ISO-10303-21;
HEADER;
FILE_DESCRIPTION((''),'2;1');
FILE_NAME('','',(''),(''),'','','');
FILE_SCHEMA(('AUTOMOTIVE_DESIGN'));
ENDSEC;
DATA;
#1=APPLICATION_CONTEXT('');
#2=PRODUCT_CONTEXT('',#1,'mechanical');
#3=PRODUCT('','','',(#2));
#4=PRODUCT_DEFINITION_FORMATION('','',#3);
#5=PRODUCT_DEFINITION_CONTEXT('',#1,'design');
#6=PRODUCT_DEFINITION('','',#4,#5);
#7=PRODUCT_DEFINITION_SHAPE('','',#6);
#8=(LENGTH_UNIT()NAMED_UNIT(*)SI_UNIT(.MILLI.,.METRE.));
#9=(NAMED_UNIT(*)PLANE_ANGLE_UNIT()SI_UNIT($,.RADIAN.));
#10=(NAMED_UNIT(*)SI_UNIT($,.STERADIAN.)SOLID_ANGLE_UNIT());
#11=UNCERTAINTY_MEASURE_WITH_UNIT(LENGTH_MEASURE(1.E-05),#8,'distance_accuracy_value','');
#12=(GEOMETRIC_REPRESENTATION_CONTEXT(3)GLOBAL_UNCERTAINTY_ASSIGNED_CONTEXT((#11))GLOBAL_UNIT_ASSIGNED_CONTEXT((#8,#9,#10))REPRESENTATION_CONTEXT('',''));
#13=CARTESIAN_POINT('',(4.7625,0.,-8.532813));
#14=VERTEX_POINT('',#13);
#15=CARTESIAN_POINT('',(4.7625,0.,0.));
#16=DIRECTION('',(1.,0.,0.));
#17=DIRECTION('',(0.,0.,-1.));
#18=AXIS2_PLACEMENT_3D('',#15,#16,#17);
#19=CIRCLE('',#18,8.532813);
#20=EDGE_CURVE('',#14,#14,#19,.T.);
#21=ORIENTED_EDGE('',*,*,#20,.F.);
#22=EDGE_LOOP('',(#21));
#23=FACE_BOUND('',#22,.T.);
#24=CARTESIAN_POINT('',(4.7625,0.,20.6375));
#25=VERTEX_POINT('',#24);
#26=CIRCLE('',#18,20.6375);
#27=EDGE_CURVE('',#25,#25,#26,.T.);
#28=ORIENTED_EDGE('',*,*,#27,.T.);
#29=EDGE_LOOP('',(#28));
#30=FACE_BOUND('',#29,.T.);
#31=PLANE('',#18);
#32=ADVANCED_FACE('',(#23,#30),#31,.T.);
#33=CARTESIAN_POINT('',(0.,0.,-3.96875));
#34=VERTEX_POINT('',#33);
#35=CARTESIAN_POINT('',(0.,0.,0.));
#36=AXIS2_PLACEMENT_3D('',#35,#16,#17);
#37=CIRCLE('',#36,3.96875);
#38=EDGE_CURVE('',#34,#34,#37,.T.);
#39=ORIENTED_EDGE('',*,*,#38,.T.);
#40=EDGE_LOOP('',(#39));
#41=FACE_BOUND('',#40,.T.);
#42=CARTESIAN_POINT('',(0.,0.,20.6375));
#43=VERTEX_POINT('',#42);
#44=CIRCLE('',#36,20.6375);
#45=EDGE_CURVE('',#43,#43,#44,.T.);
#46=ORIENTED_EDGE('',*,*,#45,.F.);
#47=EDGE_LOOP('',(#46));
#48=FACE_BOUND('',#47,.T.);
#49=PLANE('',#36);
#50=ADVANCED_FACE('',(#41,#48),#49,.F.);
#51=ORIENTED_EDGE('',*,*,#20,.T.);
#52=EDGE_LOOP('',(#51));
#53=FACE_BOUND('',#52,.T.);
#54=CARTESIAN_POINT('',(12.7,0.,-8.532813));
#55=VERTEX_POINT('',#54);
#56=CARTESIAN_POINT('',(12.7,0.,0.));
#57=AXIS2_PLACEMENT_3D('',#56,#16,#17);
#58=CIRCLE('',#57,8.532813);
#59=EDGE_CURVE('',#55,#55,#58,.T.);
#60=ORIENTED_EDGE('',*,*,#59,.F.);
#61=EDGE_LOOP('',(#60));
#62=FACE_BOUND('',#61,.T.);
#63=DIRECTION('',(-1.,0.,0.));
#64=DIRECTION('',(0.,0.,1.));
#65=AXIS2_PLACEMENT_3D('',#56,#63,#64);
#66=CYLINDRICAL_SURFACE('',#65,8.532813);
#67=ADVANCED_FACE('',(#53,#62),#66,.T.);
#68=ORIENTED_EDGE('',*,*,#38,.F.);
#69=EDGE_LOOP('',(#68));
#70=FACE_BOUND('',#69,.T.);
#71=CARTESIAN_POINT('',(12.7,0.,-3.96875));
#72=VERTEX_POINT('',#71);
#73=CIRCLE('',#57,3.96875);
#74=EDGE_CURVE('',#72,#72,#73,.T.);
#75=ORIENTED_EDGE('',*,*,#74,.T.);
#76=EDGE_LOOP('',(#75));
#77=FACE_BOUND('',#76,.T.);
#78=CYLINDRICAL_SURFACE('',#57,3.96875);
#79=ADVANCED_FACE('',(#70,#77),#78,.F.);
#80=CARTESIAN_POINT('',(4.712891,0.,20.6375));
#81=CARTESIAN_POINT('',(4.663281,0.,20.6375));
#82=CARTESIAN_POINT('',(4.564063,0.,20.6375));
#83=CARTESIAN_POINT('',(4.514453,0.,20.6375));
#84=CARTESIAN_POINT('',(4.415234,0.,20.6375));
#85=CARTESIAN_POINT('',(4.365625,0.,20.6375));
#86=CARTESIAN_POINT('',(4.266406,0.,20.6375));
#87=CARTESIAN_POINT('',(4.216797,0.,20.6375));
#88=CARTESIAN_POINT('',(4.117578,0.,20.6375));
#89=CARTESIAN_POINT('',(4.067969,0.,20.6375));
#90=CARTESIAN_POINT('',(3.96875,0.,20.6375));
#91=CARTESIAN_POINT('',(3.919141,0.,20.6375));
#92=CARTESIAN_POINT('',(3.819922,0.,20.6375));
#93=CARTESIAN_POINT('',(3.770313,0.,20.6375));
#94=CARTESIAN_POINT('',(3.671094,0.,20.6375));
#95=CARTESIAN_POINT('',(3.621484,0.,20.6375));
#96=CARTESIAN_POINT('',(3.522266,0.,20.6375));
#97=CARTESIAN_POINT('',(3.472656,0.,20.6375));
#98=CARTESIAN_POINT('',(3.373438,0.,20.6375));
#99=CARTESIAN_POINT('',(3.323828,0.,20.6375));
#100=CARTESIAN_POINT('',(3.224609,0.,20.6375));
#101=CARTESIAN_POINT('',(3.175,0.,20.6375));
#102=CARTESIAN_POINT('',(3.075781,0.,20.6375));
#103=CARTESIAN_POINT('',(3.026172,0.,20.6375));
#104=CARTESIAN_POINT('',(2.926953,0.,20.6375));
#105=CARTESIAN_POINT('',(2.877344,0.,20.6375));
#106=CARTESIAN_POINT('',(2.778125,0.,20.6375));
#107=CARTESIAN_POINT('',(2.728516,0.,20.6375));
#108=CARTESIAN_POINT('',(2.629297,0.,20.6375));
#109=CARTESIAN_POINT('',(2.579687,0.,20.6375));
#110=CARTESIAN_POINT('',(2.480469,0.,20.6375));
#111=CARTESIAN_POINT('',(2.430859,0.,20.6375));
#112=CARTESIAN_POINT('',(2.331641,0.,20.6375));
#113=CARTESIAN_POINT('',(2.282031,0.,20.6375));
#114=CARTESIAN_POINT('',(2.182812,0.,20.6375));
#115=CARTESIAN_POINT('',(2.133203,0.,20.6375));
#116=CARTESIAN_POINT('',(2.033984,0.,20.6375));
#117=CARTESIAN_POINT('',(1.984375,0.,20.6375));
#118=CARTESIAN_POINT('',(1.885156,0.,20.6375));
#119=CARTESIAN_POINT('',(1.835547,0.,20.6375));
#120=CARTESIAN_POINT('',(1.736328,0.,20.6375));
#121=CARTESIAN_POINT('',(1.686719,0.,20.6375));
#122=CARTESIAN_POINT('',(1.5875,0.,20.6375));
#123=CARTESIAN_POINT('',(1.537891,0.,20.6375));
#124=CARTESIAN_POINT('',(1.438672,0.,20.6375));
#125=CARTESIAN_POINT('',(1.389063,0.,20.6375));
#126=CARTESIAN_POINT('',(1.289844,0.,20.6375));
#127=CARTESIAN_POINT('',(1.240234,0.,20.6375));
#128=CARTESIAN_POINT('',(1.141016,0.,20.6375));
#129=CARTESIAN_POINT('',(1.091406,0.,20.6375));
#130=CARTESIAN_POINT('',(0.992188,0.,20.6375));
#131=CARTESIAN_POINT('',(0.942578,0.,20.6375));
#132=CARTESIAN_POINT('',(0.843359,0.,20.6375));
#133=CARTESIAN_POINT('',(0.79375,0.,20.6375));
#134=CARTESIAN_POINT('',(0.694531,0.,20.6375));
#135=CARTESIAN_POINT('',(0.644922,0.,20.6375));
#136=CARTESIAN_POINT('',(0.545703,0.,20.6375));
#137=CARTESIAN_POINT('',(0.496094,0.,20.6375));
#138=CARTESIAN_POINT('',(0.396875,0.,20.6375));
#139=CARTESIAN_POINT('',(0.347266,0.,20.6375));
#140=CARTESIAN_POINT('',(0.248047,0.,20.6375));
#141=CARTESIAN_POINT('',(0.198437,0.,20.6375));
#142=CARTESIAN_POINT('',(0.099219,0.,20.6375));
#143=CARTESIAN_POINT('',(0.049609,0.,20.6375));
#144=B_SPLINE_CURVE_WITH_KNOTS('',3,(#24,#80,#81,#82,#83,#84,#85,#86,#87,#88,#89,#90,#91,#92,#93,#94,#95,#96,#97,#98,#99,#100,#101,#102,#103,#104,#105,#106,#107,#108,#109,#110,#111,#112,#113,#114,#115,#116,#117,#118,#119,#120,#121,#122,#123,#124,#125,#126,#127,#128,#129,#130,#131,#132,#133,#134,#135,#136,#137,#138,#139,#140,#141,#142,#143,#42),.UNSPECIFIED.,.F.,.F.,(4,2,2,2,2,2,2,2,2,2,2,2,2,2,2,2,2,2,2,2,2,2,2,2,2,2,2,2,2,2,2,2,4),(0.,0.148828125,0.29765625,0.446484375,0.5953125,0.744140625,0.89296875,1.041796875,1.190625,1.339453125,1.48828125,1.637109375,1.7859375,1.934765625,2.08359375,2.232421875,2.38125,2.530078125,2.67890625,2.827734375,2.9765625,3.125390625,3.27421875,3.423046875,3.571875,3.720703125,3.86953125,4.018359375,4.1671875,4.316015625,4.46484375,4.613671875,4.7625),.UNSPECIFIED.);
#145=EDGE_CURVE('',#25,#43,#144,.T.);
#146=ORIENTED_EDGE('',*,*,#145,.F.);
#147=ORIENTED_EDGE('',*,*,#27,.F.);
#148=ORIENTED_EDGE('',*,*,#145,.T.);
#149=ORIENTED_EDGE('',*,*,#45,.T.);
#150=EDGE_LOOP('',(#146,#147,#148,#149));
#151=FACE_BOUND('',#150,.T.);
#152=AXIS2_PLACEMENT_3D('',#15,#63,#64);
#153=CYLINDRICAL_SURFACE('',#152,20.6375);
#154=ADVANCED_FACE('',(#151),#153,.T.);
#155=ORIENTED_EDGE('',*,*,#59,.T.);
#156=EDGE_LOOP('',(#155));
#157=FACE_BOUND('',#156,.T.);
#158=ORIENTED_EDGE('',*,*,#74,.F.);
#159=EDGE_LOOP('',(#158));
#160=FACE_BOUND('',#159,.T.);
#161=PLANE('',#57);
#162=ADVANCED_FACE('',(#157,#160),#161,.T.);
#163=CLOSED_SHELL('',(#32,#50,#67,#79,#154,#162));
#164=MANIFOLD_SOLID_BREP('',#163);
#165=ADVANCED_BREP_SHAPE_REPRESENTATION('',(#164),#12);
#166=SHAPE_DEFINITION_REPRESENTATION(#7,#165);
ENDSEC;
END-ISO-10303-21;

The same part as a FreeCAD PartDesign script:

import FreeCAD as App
import Part
import Sketcher
from FreeCAD import Vector
Q = App.Units.Quantity

doc = App.newDocument("Part")
body = doc.addObject("PartDesign::Body", "Body")

# Sketch on YZ plane
sketch1 = doc.addObject("Sketcher::SketchObject", "Sketch")
body.addObject(sketch1)
sketch1.AttachmentSupport = (doc.YZ_Plane, [""])
sketch1.MapMode = "FlatFace"
sketch1.addGeometry(Part.Circle(Vector(0, 0, 0), Vector(0, 0, 1), 21), False)
sketch1.addConstraint([
    Sketcher.Constraint("Coincident", 0, 3, -1, 1),
    Sketcher.Constraint("Diameter", 0, Q("1.625 in")),
])
pad1 = doc.addObject("PartDesign::Pad", "Pad")
body.addObject(pad1)
pad1.Profile = sketch1
pad1.Length = Q("0.1875 in")

# Sketch on YZ plane
sketch2 = doc.addObject("Sketcher::SketchObject", "Sketch001")
body.addObject(sketch2)
sketch2.AttachmentSupport = (doc.YZ_Plane, [""])
sketch2.MapMode = "FlatFace"
sketch2.AttachmentOffset = App.Placement(Vector(0, 0, 0.1875 * 25.4), App.Rotation())
sketch2.addGeometry(Part.Circle(Vector(0, 0, 0), Vector(0, 0, 1), 9), False)
sketch2.addConstraint([
    Sketcher.Constraint("Coincident", 0, 3, -1, 1),
    Sketcher.Constraint("Diameter", 0, Q("0.671875 in")),
])
pad2 = doc.addObject("PartDesign::Pad", "Pad001")
body.addObject(pad2)
pad2.Profile = sketch2
pad2.Length = Q("0.3125 in")

# Sketch on YZ plane
sketch3 = doc.addObject("Sketcher::SketchObject", "Sketch002")
body.addObject(sketch3)
sketch3.AttachmentSupport = (doc.YZ_Plane, [""])
sketch3.MapMode = "FlatFace"
sketch3.AttachmentOffset = App.Placement(Vector(0, 0, 0.5 * 25.4), App.Rotation())
sketch3.addGeometry(Part.Circle(Vector(0, 0, 0), Vector(0, 0, 1), 4), False)
sketch3.addConstraint([
    Sketcher.Constraint("Coincident", 0, 3, -1, 1),
    Sketcher.Constraint("Diameter", 0, Q("0.3125 in")),
])
doc.recompute()
hole = doc.addObject("PartDesign::Hole", "Hole")
body.addObject(hole)
hole.Profile = sketch3
hole.ThreadType = "None"
hole.Diameter = Q("0.3125 in")
hole.DepthType = "Dimension"
hole.Depth = Q("2.76 in")
hole.DrillPoint = "Angled"
hole.DrillPointAngle = 118

doc.recompute()
